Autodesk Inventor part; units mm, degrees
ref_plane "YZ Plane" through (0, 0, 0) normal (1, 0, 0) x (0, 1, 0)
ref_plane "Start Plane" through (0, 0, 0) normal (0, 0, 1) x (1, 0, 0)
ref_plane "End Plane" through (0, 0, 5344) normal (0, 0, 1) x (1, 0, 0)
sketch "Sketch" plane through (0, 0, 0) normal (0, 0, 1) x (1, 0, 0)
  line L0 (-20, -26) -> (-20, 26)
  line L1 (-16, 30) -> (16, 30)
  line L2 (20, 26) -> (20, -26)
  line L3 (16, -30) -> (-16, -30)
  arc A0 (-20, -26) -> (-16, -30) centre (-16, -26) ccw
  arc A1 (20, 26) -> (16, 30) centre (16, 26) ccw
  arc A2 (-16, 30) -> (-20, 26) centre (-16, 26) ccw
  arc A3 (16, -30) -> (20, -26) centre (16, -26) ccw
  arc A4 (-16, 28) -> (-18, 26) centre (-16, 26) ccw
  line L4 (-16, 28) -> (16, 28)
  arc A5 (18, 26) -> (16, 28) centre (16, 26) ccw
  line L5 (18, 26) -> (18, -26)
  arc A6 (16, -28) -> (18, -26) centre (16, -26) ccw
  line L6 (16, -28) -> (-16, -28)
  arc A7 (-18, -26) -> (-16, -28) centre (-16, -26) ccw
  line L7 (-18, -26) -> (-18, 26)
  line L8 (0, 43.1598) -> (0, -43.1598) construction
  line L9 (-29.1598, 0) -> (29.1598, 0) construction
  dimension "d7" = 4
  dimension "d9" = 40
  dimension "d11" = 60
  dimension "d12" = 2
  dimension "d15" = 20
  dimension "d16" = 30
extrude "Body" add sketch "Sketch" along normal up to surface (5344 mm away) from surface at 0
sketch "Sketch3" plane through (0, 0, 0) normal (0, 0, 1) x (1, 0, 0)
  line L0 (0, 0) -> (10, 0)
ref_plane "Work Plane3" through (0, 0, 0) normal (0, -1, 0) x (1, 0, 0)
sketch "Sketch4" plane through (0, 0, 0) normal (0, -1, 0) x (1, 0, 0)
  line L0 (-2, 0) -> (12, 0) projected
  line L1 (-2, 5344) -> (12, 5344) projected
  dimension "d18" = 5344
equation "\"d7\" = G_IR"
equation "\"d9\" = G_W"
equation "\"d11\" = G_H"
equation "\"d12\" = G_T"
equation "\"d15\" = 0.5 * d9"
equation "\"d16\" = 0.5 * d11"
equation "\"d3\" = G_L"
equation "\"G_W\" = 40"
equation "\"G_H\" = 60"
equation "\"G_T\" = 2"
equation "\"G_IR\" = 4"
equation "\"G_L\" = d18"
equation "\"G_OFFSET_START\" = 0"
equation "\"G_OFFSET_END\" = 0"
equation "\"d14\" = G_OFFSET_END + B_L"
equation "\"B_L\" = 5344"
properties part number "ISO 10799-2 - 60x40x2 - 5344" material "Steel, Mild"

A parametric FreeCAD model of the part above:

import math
import FreeCAD as App
import Part
import Sketcher

V = App.Vector

doc = App.newDocument("Part")
body = doc.addObject("PartDesign::Body", "Body")

# Sketch on XY plane
sketch1 = doc.addObject("Sketcher::SketchObject", "Sketch")
body.addObject(sketch1)
sketch1.AttachmentSupport = (doc.XY_Plane, [""])
sketch1.MapMode = "FlatFace"
sketch1.addGeometry(Part.LineSegment(V(-20, 26, 0), V(-20, -26, 0)), False)
sketch1.addGeometry(Part.ArcOfCircle(Part.Circle(V(-16, -26, 0), V(0, 0, 1), 4), math.radians(180), math.radians(270)), False)
sketch1.addGeometry(Part.LineSegment(V(-16, -30, 0), V(16, -30, 0)), False)
sketch1.addGeometry(Part.ArcOfCircle(Part.Circle(V(16, -26, 0), V(0, 0, 1), 4), math.radians(-90), math.radians(0)), False)
sketch1.addGeometry(Part.LineSegment(V(20, -26, 0), V(20, 26, 0)), False)
sketch1.addGeometry(Part.ArcOfCircle(Part.Circle(V(16, 26, 0), V(0, 0, 1), 4), math.radians(0), math.radians(90)), False)
sketch1.addGeometry(Part.LineSegment(V(16, 30, 0), V(-16, 30, 0)), False)
sketch1.addGeometry(Part.ArcOfCircle(Part.Circle(V(-16, 26, 0), V(0, 0, 1), 4), math.radians(90), math.radians(180)), False)
sketch1.addGeometry(Part.ArcOfCircle(Part.Circle(V(-16, 26, 0), V(0, 0, 1), 2), math.radians(90), math.radians(180)), False)
sketch1.addGeometry(Part.LineSegment(V(-16, 28, 0), V(16, 28, 0)), False)
sketch1.addGeometry(Part.ArcOfCircle(Part.Circle(V(16, 26, 0), V(0, 0, 1), 2), math.radians(0), math.radians(90)), False)
sketch1.addGeometry(Part.LineSegment(V(18, 26, 0), V(18, -26, 0)), False)
sketch1.addGeometry(Part.ArcOfCircle(Part.Circle(V(16, -26, 0), V(0, 0, 1), 2), math.radians(-90), math.radians(0)), False)
sketch1.addGeometry(Part.LineSegment(V(16, -28, 0), V(-16, -28, 0)), False)
sketch1.addGeometry(Part.ArcOfCircle(Part.Circle(V(-16, -26, 0), V(0, 0, 1), 2), math.radians(180), math.radians(270)), False)
sketch1.addGeometry(Part.LineSegment(V(-18, -26, 0), V(-18, 26, 0)), False)
sketch1.addConstraint(Sketcher.Constraint("Tangent", 0, 2, 1, 1))
sketch1.addConstraint(Sketcher.Constraint("Tangent", 1, 2, 2, 1))
sketch1.addConstraint(Sketcher.Constraint("Tangent", 2, 2, 3, 1))
sketch1.addConstraint(Sketcher.Constraint("Tangent", 3, 2, 4, 1))
sketch1.addConstraint(Sketcher.Constraint("Tangent", 4, 2, 5, 1))
sketch1.addConstraint(Sketcher.Constraint("Tangent", 5, 2, 6, 1))
sketch1.addConstraint(Sketcher.Constraint("Tangent", 6, 2, 7, 1))
sketch1.addConstraint(Sketcher.Constraint("Tangent", 7, 2, 0, 1))
sketch1.addConstraint(Sketcher.Constraint("Tangent", 8, 1, 9, 1))
sketch1.addConstraint(Sketcher.Constraint("Tangent", 9, 2, 10, 2))
sketch1.addConstraint(Sketcher.Constraint("Tangent", 10, 1, 11, 1))
sketch1.addConstraint(Sketcher.Constraint("Tangent", 11, 2, 12, 2))
sketch1.addConstraint(Sketcher.Constraint("Tangent", 12, 1, 13, 1))
sketch1.addConstraint(Sketcher.Constraint("Tangent", 13, 2, 14, 2))
sketch1.addConstraint(Sketcher.Constraint("Tangent", 14, 1, 15, 1))
sketch1.addConstraint(Sketcher.Constraint("Tangent", 15, 2, 8, 2))
sketch1.addConstraint(Sketcher.Constraint("Vertical", 0))
sketch1.addConstraint(Sketcher.Constraint("Horizontal", 2))
sketch1.addConstraint(Sketcher.Constraint("Vertical", 4))
sketch1.addConstraint(Sketcher.Constraint("Horizontal", 6))
sketch1.addConstraint(Sketcher.Constraint("Horizontal", 9))
sketch1.addConstraint(Sketcher.Constraint("Vertical", 11))
sketch1.addConstraint(Sketcher.Constraint("Horizontal", 13))
sketch1.addConstraint(Sketcher.Constraint("Vertical", 15))
sketch1.addConstraint(Sketcher.Constraint("Coincident", 8, 3, 7, 3))
sketch1.addConstraint(Sketcher.Constraint("Coincident", 10, 3, 5, 3))
sketch1.addConstraint(Sketcher.Constraint("Coincident", 12, 3, 3, 3))
sketch1.addConstraint(Sketcher.Constraint("Equal", 1, 3))
sketch1.addConstraint(Sketcher.Constraint("Equal", 3, 5))
sketch1.addConstraint(Sketcher.Constraint("Equal", 5, 7))
sketch1.addConstraint(Sketcher.Constraint("Equal", 12, 14))
sketch1.addConstraint(Sketcher.Constraint("Symmetric", 1, 3, 5, 3, -1, 1))
sketch1.addConstraint(Sketcher.Constraint("Radius", 1, 4.0))
sketch1.addConstraint(Sketcher.Constraint("Radius", 8, 2.0))
sketch1.addConstraint(Sketcher.Constraint("DistanceX", 0, 2, -1, 1, 20.0))
sketch1.addConstraint(Sketcher.Constraint("DistanceY", 1, 2, -1, 1, 30.0))
pad1 = doc.addObject("PartDesign::Pad", "Pad")
body.addObject(pad1)
pad1.Profile = sketch1
pad1.Length = 5344

doc.recompute()
